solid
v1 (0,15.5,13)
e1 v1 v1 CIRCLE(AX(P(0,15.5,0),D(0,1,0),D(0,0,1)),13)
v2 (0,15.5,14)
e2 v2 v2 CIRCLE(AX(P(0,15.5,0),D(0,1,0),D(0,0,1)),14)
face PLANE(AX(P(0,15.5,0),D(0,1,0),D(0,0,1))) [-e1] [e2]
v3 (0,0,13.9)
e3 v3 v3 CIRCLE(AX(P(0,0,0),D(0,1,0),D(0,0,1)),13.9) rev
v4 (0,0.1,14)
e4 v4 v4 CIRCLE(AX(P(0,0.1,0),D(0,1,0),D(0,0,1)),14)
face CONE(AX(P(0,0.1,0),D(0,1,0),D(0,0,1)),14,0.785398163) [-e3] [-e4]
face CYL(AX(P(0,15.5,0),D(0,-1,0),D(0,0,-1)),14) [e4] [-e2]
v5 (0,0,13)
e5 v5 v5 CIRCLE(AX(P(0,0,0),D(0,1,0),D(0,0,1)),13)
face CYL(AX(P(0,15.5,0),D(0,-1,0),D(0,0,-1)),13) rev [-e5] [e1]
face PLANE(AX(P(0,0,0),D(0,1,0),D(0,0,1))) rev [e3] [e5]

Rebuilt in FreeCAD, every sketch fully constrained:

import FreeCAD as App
import Part
import Sketcher

V = App.Vector
Q = App.Units.Quantity


def edges_at(feature, points):
    """Names of the edges that pass closest to the given points."""
    edges = feature.Shape.Edges
    near = lambda p: min(range(len(edges)), key=lambda i: edges[i].distToShape(Part.Vertex(*p))[0])
    return sorted({f"Edge{near(p) + 1}" for p in points})

doc = App.newDocument("Part")
params = doc.addObject("Spreadsheet::Sheet", "Params")
for row, (alias, value) in enumerate([
    ("sketch1_diameter", "28 mm"),
    ("sketch1_diameter2", "26 mm"),
    ("pad1_length", "15.5 mm"),
    ("chamfer_size", "0.1 mm"),
], start=1):
    params.set(f"A{row}", alias)
    params.set(f"B{row}", "=" + value)
    params.setAlias(f"B{row}", alias)

body = doc.addObject("PartDesign::Body", "Body")

sketch1 = body.newObject("Sketcher::SketchObject", "Sketch")
sketch1.AttachmentSupport = (doc.getObject("XZ_Plane"), [""])
sketch1.MapMode = "FlatFace"
sketch1.addGeometry(Part.Circle(V(0, 0, 0), V(0, 0, 1), 14), False)
sketch1.addGeometry(Part.Circle(V(0, 0, 0), V(0, 0, 1), 13), False)
sketch1.addConstraint(Sketcher.Constraint("Coincident", 0, 3, -1, 1))
sketch1.addConstraint(Sketcher.Constraint("Coincident", 1, 3, -1, 1))
sketch1.addConstraint(Sketcher.Constraint("Diameter", 0, Q("28 mm")))
sketch1.addConstraint(Sketcher.Constraint("Diameter", 1, Q("26 mm")))
sketch1.setExpression("Constraints[2]", "Params.sketch1_diameter")
sketch1.setExpression("Constraints[3]", "Params.sketch1_diameter2")
pad1 = body.newObject("PartDesign::Pad", "Pad")
pad1.Profile = sketch1
pad1.setExpression("Length", "Params.pad1_length")
pad1.Reversed = True
doc.recompute()

chamfer = body.newObject("PartDesign::Chamfer", "Chamfer")
chamfer.Base = (pad1, edges_at(pad1, [(0, 0, -14)]))
chamfer.setExpression("Size", "Params.chamfer_size")

doc.recompute()
